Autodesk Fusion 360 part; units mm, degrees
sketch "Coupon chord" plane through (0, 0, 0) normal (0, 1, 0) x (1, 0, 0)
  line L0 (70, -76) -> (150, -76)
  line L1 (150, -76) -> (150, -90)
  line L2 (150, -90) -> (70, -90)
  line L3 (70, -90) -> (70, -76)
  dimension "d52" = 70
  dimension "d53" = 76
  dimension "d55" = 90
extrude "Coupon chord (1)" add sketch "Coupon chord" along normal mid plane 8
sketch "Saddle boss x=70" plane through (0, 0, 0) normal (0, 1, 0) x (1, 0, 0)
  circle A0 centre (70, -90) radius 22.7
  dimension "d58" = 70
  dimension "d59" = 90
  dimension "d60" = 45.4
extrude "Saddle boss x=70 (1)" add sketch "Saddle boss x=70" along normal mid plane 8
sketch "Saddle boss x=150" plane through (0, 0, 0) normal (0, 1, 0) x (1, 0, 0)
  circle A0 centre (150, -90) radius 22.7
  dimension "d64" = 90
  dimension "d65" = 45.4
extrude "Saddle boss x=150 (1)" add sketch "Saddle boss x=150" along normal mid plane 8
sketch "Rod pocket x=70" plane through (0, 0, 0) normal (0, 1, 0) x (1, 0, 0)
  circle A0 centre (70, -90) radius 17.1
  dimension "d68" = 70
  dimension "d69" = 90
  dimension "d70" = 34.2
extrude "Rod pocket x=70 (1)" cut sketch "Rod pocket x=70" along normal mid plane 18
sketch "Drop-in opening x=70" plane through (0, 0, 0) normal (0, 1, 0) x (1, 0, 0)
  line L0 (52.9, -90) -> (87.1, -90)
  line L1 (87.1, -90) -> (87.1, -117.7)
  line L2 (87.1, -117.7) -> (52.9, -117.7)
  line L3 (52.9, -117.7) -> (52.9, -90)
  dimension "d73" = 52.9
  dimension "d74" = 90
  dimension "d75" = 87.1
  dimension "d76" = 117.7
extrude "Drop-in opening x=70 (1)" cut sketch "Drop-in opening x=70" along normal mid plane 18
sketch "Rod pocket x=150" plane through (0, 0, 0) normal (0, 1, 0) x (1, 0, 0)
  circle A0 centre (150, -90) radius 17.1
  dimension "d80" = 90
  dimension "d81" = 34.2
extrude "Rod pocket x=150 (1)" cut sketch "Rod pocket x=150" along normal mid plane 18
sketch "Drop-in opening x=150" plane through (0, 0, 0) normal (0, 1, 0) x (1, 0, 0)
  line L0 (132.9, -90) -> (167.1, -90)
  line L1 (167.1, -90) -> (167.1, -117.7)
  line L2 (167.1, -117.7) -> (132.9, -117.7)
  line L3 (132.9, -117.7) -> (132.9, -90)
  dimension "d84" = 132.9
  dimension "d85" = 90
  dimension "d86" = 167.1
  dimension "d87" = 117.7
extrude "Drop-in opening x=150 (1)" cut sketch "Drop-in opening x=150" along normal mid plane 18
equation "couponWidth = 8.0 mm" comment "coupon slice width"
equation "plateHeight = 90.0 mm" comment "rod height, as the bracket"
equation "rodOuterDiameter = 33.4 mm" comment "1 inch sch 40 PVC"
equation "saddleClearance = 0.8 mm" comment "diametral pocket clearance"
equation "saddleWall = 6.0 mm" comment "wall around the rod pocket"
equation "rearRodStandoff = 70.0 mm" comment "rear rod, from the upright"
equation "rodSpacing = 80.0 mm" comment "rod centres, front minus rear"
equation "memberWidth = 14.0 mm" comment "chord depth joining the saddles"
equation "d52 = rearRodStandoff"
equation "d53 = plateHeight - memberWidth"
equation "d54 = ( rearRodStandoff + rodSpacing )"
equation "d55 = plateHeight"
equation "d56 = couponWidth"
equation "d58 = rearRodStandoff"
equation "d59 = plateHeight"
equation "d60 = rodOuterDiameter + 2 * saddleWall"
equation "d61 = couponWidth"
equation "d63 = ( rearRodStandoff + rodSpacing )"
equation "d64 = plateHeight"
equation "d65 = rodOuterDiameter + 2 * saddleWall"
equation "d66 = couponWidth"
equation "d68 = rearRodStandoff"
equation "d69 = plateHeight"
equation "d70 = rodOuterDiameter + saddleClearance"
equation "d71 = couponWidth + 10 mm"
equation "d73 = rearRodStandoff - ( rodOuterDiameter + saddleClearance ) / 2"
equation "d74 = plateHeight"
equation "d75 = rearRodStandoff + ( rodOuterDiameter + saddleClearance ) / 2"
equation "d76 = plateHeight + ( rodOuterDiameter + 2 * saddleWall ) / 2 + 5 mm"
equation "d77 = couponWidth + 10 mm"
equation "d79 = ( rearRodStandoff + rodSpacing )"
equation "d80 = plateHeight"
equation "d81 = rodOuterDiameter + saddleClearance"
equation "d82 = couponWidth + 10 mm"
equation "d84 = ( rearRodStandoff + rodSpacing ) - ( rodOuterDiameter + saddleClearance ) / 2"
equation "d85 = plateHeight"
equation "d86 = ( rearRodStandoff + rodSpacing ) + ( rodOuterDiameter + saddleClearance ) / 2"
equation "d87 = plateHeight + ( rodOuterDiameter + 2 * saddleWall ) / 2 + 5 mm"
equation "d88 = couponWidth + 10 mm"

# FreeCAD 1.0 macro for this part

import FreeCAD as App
import Part
import Sketcher

V = App.Vector

doc = App.newDocument("Part")
body = doc.addObject("PartDesign::Body", "Body")

sketch1 = body.newObject("Sketcher::SketchObject", "Sketch")
sketch1.AttachmentSupport = (doc.getObject("XZ_Plane"), [""])
sketch1.MapMode = "FlatFace"
sketch1.addGeometry(Part.LineSegment(V(150, 76, 0), V(70, 76, 0)), False)
sketch1.addGeometry(Part.LineSegment(V(70, 76, 0), V(70, 90, 0)), False)
sketch1.addGeometry(Part.LineSegment(V(70, 90, 0), V(150, 90, 0)), False)
sketch1.addGeometry(Part.LineSegment(V(150, 90, 0), V(150, 76, 0)), False)
sketch1.addConstraint(Sketcher.Constraint("Coincident", 0, 2, 1, 1))
sketch1.addConstraint(Sketcher.Constraint("Coincident", 1, 2, 2, 1))
sketch1.addConstraint(Sketcher.Constraint("Coincident", 2, 2, 3, 1))
sketch1.addConstraint(Sketcher.Constraint("Coincident", 3, 2, 0, 1))
sketch1.addConstraint(Sketcher.Constraint("Horizontal", 0))
sketch1.addConstraint(Sketcher.Constraint("Vertical", 1))
sketch1.addConstraint(Sketcher.Constraint("Horizontal", 2))
sketch1.addConstraint(Sketcher.Constraint("Vertical", 3))
sketch1.addConstraint(Sketcher.Constraint("DistanceX", -1, 1, 0, 2, 70.0))
sketch1.addConstraint(Sketcher.Constraint("DistanceY", -1, 1, 0, 2, 76.0))
sketch1.addConstraint(Sketcher.Constraint("DistanceY", -1, 1, 1, 2, 90.0))
sketch1.addConstraint(Sketcher.Constraint("DistanceX", 0, 2, 0, 1, 80.0))
pad1 = body.newObject("PartDesign::Pad", "Pad")
pad1.Profile = sketch1
pad1.Length = 8
pad1.Midplane = True

sketch2 = body.newObject("Sketcher::SketchObject", "Sketch001")
sketch2.AttachmentSupport = (doc.getObject("XZ_Plane"), [""])
sketch2.MapMode = "FlatFace"
sketch2.addGeometry(Part.Circle(V(70, 90, 0), V(0, 0, 1), 23), False)
sketch2.addConstraint(Sketcher.Constraint("Diameter", 0, 45.4))
sketch2.addConstraint(Sketcher.Constraint("DistanceX", -1, 1, 0, 3, 70.0))
sketch2.addConstraint(Sketcher.Constraint("DistanceY", -1, 1, 0, 3, 90.0))
pad2 = body.newObject("PartDesign::Pad", "Pad001")
pad2.Profile = sketch2
pad2.Length = 8
pad2.Midplane = True

sketch3 = body.newObject("Sketcher::SketchObject", "Sketch002")
sketch3.AttachmentSupport = (doc.getObject("XZ_Plane"), [""])
sketch3.MapMode = "FlatFace"
sketch3.addGeometry(Part.Circle(V(150, 90, 0), V(0, 0, 1), 23), False)
sketch3.addConstraint(Sketcher.Constraint("Diameter", 0, 45.4))
sketch3.addConstraint(Sketcher.Constraint("DistanceY", -1, 1, 0, 3, 90.0))
sketch3.addConstraint(Sketcher.Constraint("DistanceX", -1, 1, 0, 3, 150.0))
pad3 = body.newObject("PartDesign::Pad", "Pad002")
pad3.Profile = sketch3
pad3.Length = 8
pad3.Midplane = True

sketch4 = body.newObject("Sketcher::SketchObject", "Sketch003")
sketch4.AttachmentSupport = (doc.getObject("XZ_Plane"), [""])
sketch4.MapMode = "FlatFace"
sketch4.addGeometry(Part.Circle(V(70, 90, 0), V(0, 0, 1), 17), False)
sketch4.addConstraint(Sketcher.Constraint("Diameter", 0, 34.2))
sketch4.addConstraint(Sketcher.Constraint("DistanceX", -1, 1, 0, 3, 70.0))
sketch4.addConstraint(Sketcher.Constraint("DistanceY", -1, 1, 0, 3, 90.0))
pocket1 = body.newObject("PartDesign::Pocket", "Pocket")
pocket1.Profile = sketch4
pocket1.Length = 18
pocket1.Midplane = True

sketch5 = body.newObject("Sketcher::SketchObject", "Sketch004")
sketch5.AttachmentSupport = (doc.getObject("XZ_Plane"), [""])
sketch5.MapMode = "FlatFace"
sketch5.addGeometry(Part.LineSegment(V(87, 90, 0), V(53, 90, 0)), False)
sketch5.addGeometry(Part.LineSegment(V(53, 90, 0), V(53, 118, 0)), False)
sketch5.addGeometry(Part.LineSegment(V(53, 118, 0), V(87, 118, 0)), False)
sketch5.addGeometry(Part.LineSegment(V(87, 118, 0), V(87, 90, 0)), False)
sketch5.addConstraint(Sketcher.Constraint("Coincident", 0, 2, 1, 1))
sketch5.addConstraint(Sketcher.Constraint("Coincident", 1, 2, 2, 1))
sketch5.addConstraint(Sketcher.Constraint("Coincident", 2, 2, 3, 1))
sketch5.addConstraint(Sketcher.Constraint("Coincident", 3, 2, 0, 1))
sketch5.addConstraint(Sketcher.Constraint("Horizontal", 0))
sketch5.addConstraint(Sketcher.Constraint("Vertical", 1))
sketch5.addConstraint(Sketcher.Constraint("Horizontal", 2))
sketch5.addConstraint(Sketcher.Constraint("Vertical", 3))
sketch5.addConstraint(Sketcher.Constraint("DistanceY", -1, 1, 0, 2, 90.0))
sketch5.addConstraint(Sketcher.Constraint("DistanceX", -1, 1, 0, 2, 52.9))
sketch5.addConstraint(Sketcher.Constraint("DistanceY", -1, 1, 1, 2, 117.7))
sketch5.addConstraint(Sketcher.Constraint("DistanceX", -1, 1, 2, 2, 87.1))
pocket2 = body.newObject("PartDesign::Pocket", "Pocket001")
pocket2.Profile = sketch5
pocket2.Length = 18
pocket2.Midplane = True

sketch6 = body.newObject("Sketcher::SketchObject", "Sketch005")
sketch6.AttachmentSupport = (doc.getObject("XZ_Plane"), [""])
sketch6.MapMode = "FlatFace"
sketch6.addGeometry(Part.Circle(V(150, 90, 0), V(0, 0, 1), 17), False)
sketch6.addConstraint(Sketcher.Constraint("Diameter", 0, 34.2))
sketch6.addConstraint(Sketcher.Constraint("DistanceY", -1, 1, 0, 3, 90.0))
sketch6.addConstraint(Sketcher.Constraint("DistanceX", -1, 1, 0, 3, 150.0))
pocket3 = body.newObject("PartDesign::Pocket", "Pocket002")
pocket3.Profile = sketch6
pocket3.Length = 18
pocket3.Midplane = True

sketch7 = body.newObject("Sketcher::SketchObject", "Sketch006")
sketch7.AttachmentSupport = (doc.getObject("XZ_Plane"), [""])
sketch7.MapMode = "FlatFace"
sketch7.addGeometry(Part.LineSegment(V(167, 90, 0), V(133, 90, 0)), False)
sketch7.addGeometry(Part.LineSegment(V(133, 90, 0), V(133, 118, 0)), False)
sketch7.addGeometry(Part.LineSegment(V(133, 118, 0), V(167, 118, 0)), False)
sketch7.addGeometry(Part.LineSegment(V(167, 118, 0), V(167, 90, 0)), False)
sketch7.addConstraint(Sketcher.Constraint("Coincident", 0, 2, 1, 1))
sketch7.addConstraint(Sketcher.Constraint("Coincident", 1, 2, 2, 1))
sketch7.addConstraint(Sketcher.Constraint("Coincident", 2, 2, 3, 1))
sketch7.addConstraint(Sketcher.Constraint("Coincident", 3, 2, 0, 1))
sketch7.addConstraint(Sketcher.Constraint("Horizontal", 0))
sketch7.addConstraint(Sketcher.Constraint("Vertical", 1))
sketch7.addConstraint(Sketcher.Constraint("Horizontal", 2))
sketch7.addConstraint(Sketcher.Constraint("Vertical", 3))
sketch7.addConstraint(Sketcher.Constraint("DistanceY", -1, 1, 0, 2, 90.0))
sketch7.addConstraint(Sketcher.Constraint("DistanceX", -1, 1, 0, 2, 132.9))
sketch7.addConstraint(Sketcher.Constraint("DistanceY", -1, 1, 1, 2, 117.7))
sketch7.addConstraint(Sketcher.Constraint("DistanceX", -1, 1, 2, 2, 167.1))
pocket4 = body.newObject("PartDesign::Pocket", "Pocket003")
pocket4.Profile = sketch7
pocket4.Length = 18
pocket4.Midplane = True

doc.recompute()
